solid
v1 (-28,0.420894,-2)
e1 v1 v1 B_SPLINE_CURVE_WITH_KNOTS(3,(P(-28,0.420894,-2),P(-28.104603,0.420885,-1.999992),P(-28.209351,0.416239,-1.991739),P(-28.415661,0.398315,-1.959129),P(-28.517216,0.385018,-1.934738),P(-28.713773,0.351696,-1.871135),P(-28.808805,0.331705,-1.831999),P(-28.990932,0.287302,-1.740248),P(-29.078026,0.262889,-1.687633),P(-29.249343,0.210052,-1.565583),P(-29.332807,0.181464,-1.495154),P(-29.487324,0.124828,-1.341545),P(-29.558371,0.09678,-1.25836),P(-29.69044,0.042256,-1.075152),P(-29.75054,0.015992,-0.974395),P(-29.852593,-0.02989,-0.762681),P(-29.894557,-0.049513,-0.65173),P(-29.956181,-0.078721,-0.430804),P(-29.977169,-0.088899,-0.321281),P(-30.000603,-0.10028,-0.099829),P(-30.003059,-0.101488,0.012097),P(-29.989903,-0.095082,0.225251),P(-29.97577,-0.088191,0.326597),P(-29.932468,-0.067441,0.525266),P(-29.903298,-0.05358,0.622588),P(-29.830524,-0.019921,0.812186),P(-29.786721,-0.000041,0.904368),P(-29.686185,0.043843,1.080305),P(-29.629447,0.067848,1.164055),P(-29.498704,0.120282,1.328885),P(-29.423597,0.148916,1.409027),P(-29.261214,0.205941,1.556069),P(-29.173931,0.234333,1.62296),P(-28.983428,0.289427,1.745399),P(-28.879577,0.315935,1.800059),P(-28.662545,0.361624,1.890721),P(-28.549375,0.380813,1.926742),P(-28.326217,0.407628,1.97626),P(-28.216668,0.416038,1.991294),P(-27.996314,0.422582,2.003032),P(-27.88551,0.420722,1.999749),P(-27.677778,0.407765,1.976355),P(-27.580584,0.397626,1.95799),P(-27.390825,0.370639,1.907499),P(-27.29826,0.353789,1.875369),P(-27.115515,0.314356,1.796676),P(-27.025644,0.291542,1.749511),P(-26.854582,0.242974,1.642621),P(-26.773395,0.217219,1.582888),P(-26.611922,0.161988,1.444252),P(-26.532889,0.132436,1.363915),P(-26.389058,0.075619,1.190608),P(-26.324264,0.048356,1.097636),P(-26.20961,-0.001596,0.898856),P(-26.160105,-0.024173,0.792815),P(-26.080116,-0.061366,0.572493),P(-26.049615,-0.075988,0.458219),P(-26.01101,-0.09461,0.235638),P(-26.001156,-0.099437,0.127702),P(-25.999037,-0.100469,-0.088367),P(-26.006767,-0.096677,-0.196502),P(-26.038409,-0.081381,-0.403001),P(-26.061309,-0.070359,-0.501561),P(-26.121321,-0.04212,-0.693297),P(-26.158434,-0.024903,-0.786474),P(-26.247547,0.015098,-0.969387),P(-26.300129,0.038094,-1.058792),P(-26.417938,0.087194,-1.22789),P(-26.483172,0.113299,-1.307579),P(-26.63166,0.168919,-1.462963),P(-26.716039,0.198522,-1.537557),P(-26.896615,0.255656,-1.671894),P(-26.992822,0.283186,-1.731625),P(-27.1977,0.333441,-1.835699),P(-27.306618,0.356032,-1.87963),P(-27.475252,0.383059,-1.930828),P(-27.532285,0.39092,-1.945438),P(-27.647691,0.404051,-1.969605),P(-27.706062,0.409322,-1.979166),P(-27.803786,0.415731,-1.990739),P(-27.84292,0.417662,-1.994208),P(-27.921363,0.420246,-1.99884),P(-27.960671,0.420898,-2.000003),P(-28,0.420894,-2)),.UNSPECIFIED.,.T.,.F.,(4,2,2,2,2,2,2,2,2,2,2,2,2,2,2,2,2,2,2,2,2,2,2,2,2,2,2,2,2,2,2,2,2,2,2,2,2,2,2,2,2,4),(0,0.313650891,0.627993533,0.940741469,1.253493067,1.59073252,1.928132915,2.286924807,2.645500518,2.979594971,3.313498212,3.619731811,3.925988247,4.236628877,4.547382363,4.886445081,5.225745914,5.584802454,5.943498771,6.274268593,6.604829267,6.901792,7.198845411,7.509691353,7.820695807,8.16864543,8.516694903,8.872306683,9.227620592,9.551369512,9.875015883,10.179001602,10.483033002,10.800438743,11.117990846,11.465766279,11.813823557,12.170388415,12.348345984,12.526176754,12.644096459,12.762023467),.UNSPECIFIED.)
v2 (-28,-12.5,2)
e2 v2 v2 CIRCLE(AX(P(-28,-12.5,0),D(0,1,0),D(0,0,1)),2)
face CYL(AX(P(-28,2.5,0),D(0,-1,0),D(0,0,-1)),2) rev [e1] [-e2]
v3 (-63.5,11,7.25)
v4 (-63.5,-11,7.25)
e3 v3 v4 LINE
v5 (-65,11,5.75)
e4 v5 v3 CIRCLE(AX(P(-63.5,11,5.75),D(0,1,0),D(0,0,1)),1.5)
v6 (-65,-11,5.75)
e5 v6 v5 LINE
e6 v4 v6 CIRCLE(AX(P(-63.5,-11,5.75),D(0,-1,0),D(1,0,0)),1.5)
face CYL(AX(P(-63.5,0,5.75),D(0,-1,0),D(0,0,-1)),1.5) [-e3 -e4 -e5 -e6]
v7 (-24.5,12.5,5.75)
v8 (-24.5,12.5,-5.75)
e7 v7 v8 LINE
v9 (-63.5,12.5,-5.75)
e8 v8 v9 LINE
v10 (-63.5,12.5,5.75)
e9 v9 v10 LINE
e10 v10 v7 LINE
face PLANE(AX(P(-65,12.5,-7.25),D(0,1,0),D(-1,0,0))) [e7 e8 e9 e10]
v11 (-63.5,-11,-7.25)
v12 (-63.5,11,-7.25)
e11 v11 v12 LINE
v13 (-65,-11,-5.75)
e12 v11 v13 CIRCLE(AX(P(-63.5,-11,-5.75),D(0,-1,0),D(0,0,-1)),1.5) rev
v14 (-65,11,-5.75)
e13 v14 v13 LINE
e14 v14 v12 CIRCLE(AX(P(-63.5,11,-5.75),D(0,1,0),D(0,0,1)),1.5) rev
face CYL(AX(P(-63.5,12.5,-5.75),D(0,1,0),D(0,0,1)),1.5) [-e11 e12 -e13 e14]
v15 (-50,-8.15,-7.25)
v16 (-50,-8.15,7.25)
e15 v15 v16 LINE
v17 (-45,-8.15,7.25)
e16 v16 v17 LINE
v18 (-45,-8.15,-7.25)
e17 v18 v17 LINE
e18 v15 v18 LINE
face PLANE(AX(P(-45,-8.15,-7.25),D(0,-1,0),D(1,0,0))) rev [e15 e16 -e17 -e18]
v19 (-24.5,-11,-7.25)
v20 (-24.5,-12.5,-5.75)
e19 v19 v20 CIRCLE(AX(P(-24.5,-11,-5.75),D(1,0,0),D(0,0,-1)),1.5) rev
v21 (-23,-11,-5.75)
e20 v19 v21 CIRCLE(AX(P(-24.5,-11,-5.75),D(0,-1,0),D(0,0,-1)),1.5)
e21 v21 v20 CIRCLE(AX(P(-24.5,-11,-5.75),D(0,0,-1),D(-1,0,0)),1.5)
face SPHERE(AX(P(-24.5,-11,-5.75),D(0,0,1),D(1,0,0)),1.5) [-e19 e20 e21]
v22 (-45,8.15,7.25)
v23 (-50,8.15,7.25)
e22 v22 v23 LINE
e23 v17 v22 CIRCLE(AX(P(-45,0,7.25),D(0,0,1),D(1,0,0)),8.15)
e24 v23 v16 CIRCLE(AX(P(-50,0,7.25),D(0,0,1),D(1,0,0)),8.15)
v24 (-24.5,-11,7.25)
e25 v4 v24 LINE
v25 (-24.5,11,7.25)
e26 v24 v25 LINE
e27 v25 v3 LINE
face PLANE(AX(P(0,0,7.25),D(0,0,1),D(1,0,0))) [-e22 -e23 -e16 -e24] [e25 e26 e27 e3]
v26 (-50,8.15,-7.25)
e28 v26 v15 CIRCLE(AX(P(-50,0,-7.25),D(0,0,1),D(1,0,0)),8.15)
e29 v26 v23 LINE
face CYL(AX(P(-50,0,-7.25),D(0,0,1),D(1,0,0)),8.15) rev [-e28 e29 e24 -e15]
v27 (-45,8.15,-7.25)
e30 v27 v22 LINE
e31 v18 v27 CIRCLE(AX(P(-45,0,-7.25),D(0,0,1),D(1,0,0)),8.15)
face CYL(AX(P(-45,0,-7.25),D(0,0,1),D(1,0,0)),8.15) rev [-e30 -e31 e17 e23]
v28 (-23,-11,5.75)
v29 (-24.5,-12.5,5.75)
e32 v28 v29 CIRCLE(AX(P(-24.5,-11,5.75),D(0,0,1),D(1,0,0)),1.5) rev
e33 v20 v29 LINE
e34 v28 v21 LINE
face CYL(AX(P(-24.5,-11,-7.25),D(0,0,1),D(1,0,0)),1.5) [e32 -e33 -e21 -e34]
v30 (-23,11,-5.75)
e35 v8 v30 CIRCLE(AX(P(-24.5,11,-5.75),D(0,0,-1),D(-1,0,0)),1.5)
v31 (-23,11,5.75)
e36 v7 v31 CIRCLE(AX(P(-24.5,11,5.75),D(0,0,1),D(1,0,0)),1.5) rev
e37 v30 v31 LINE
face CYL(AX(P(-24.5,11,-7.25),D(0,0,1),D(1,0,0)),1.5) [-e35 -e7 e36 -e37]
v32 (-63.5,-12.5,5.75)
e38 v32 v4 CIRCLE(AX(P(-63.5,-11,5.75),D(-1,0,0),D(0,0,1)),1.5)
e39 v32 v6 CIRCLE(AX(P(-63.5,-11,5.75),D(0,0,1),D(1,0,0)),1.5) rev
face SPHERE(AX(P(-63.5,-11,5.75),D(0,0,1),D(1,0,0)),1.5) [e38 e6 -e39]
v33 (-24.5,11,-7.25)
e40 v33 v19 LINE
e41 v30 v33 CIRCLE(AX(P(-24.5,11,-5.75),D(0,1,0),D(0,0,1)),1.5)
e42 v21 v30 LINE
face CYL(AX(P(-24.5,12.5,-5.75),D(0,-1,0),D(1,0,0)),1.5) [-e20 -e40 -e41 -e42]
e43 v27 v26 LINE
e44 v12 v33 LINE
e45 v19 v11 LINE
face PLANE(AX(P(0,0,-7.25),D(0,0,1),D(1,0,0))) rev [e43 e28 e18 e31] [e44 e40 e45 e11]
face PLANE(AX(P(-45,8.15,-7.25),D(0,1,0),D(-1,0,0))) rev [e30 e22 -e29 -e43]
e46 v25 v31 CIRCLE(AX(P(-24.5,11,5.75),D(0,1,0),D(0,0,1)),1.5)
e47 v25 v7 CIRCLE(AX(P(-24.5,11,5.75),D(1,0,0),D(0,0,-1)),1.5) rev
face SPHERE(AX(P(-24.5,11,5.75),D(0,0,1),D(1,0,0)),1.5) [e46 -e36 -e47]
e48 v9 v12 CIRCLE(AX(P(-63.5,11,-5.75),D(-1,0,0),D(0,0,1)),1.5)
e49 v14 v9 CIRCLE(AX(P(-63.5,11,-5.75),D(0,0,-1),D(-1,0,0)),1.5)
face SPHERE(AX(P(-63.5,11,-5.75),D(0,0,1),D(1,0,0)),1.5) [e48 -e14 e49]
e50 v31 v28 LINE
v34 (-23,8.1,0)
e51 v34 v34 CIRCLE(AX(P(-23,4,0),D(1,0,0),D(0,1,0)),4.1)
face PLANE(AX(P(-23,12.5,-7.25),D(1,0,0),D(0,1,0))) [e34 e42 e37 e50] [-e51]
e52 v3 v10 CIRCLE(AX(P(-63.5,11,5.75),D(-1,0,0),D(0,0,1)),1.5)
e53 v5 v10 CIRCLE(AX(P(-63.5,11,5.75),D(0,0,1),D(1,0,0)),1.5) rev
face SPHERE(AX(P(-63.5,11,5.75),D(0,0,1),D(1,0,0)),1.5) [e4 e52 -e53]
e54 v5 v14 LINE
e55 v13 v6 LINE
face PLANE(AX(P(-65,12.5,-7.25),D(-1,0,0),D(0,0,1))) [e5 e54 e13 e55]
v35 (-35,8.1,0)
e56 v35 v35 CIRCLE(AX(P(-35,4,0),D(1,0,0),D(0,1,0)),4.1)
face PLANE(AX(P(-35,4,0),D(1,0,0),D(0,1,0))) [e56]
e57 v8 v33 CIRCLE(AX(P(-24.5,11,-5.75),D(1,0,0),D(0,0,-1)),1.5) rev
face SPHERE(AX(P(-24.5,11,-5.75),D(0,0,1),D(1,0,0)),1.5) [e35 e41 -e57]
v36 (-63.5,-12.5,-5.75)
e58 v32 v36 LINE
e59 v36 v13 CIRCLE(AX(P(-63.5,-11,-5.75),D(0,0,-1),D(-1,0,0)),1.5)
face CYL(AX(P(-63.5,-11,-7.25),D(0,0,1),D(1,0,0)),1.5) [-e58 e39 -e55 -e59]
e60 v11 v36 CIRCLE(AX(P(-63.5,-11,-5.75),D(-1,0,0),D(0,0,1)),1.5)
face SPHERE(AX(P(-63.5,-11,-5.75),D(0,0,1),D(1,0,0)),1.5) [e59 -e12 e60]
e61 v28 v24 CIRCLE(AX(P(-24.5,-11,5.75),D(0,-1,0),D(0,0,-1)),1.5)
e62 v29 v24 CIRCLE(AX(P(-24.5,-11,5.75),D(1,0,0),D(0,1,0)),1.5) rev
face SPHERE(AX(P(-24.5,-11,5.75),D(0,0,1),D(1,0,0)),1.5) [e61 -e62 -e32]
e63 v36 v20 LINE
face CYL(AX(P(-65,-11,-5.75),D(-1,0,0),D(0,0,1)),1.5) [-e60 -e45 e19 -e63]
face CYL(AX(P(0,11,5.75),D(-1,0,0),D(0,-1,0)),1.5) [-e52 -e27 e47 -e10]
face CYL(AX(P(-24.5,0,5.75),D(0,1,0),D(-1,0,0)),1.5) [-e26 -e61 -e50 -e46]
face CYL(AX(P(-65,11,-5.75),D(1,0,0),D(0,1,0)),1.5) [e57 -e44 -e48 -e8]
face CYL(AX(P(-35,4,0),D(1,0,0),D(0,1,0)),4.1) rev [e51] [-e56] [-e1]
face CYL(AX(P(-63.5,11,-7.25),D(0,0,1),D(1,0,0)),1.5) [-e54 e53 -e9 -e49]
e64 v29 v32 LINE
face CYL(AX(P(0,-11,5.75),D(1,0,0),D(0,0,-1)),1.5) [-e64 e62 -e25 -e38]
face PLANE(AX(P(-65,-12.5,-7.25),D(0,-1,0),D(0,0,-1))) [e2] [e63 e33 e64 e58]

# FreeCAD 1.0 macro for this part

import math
import FreeCAD as App
import Part
import Sketcher
Q = App.Units.Quantity


def edges_at(feature, points):
    """Names of the edges that pass closest to the given points."""
    edges = feature.Shape.Edges
    near = lambda p: min(range(len(edges)), key=lambda i: edges[i].distToShape(Part.Vertex(*p))[0])
    return sorted({f"Edge{near(p) + 1}" for p in points})

doc = App.newDocument("Part")
params = doc.addObject("Spreadsheet::Sheet", "Params")
for row, (alias, value) in enumerate([
    ("sketch1_width", "42 mm"),
    ("sketch1_width2", "5 mm"),
    ("sketch1_height", "25 mm"),
    ("sketch1_radius", "8.15 mm"),
    ("pad1_length", "7.25 mm"),
    ("pad1_length2", "7.25 mm"),
    ("sketch2_diameter", "8.2 mm"),
    ("pocket1_length", "12 mm"),
    ("sketch3_diameter", "4 mm"),
    ("pocket2_length", "15 mm"),
    ("fillet_radius", "1.5 mm"),
], start=1):
    params.set(f"A{row}", alias)
    params.set(f"B{row}", "=" + value)
    params.setAlias(f"B{row}", alias)

body = doc.addObject("PartDesign::Body", "Body")

# Sketch on XY plane
sketch1 = body.newObject("Sketcher::SketchObject", "Sketch")
sketch1.AttachmentSupport = (doc.getObject("XY_Plane"), [""])
sketch1.MapMode = "FlatFace"
sketch1.addGeometry([
    Part.LineSegment(App.Vector(-65, 12, 0), App.Vector(-65, -12, 0)),  # 0
    Part.LineSegment(App.Vector(-65, -12, 0), App.Vector(-23, -12, 0)),  # 1
    Part.LineSegment(App.Vector(-23, -12, 0), App.Vector(-23, 12, 0)),  # 2
    Part.LineSegment(App.Vector(-23, 12, 0), App.Vector(-65, 12, 0)),  # 3
    Part.ArcOfCircle(Part.Circle(App.Vector(-45, 0, 0), App.Vector(0, 0, 1), 8), math.radians(-90), math.radians(90)),  # 4
    Part.LineSegment(App.Vector(-45, -8, 0), App.Vector(-50, -8, 0)),  # 5
    Part.ArcOfCircle(Part.Circle(App.Vector(-50, 0, 0), App.Vector(0, 0, 1), 8), math.radians(90), math.radians(270)),  # 6
    Part.LineSegment(App.Vector(-50, 8, 0), App.Vector(-45, 8, 0)),  # 7
], False)
sketch1.addConstraint([
    Sketcher.Constraint("Coincident", 0, 2, 1, 1),
    Sketcher.Constraint("Coincident", 1, 2, 2, 1),
    Sketcher.Constraint("Coincident", 2, 2, 3, 1),
    Sketcher.Constraint("Coincident", 3, 2, 0, 1),
    Sketcher.Constraint("Tangent", 4, 1, 5, 1),
    Sketcher.Constraint("Tangent", 5, 2, 6, 2),
    Sketcher.Constraint("Tangent", 6, 1, 7, 1),
    Sketcher.Constraint("Tangent", 7, 2, 4, 2),
    Sketcher.Constraint("Vertical", 0),
    Sketcher.Constraint("Horizontal", 1),
    Sketcher.Constraint("Vertical", 2),
    Sketcher.Constraint("Horizontal", 3),
    Sketcher.Constraint("Horizontal", 5),
    Sketcher.Constraint("Horizontal", 7),
    Sketcher.Constraint("PointOnObject", 4, 3, -1),
    Sketcher.Constraint("DistanceX", 1, 1, 1, 2, Q("42 mm")),
    Sketcher.Constraint("DistanceX", 5, 2, 5, 1, Q("5 mm")),
    Sketcher.Constraint("DistanceY", 0, 2, 0, 1, Q("25 mm")),
    Sketcher.Constraint("Radius", 4, Q("8.15 mm")),
    Sketcher.Constraint("DistanceX", 4, 3, -1, 1, Q("45 mm")),
    Sketcher.Constraint("DistanceX", 0, 2, -1, 1, Q("65 mm")),
    Sketcher.Constraint("DistanceY", 0, 2, -1, 1, Q("12.5 mm")),
])
sketch1.setExpression("Constraints[15]", "Params.sketch1_width")
sketch1.setExpression("Constraints[16]", "Params.sketch1_width2")
sketch1.setExpression("Constraints[17]", "Params.sketch1_height")
sketch1.setExpression("Constraints[18]", "Params.sketch1_radius")
pad1 = body.newObject("PartDesign::Pad", "Pad")
pad1.Profile = sketch1
pad1.Type = "TwoLengths"
pad1.setExpression("Length", "Params.pad1_length")
pad1.setExpression("Length2", "Params.pad1_length2")

# Sketch on YZ plane
sketch2 = body.newObject("Sketcher::SketchObject", "Sketch001")
sketch2.AttachmentSupport = (doc.getObject("YZ_Plane"), [""])
sketch2.MapMode = "FlatFace"
sketch2.AttachmentOffset = App.Placement(App.Vector(0, 0, -23), App.Rotation())
sketch2.addGeometry(Part.Circle(App.Vector(4, 0, 0), App.Vector(0, 0, 1), 4.1), False)
sketch2.addConstraint([
    Sketcher.Constraint("PointOnObject", 0, 3, -1),
    Sketcher.Constraint("Diameter", 0, Q("8.2 mm")),
    Sketcher.Constraint("DistanceX", -1, 1, 0, 3, Q("4 mm")),
])
sketch2.setExpression("Constraints[1]", "Params.sketch2_diameter")
pocket1 = body.newObject("PartDesign::Pocket", "Pocket")
pocket1.Profile = sketch2
pocket1.setExpression("Length", "Params.pocket1_length")

# Sketch on XZ plane
sketch3 = body.newObject("Sketcher::SketchObject", "Sketch002")
sketch3.AttachmentSupport = (doc.getObject("XZ_Plane"), [""])
sketch3.MapMode = "FlatFace"
sketch3.AttachmentOffset = App.Placement(App.Vector(0, 0, 12.5), App.Rotation())
sketch3.addGeometry(Part.Circle(App.Vector(-28, 0, 0), App.Vector(0, 0, 1), 2), False)
sketch3.addConstraint([
    Sketcher.Constraint("PointOnObject", 0, 3, -1),
    Sketcher.Constraint("Diameter", 0, Q("4 mm")),
    Sketcher.Constraint("DistanceX", 0, 3, -1, 1, Q("28 mm")),
])
sketch3.setExpression("Constraints[1]", "Params.sketch3_diameter")
pocket2 = body.newObject("PartDesign::Pocket", "Pocket001")
pocket2.Profile = sketch3
pocket2.setExpression("Length", "Params.pocket2_length")
doc.recompute()

fillet = body.newObject("PartDesign::Fillet", "Fillet")
fillet.Base = (pocket2, edges_at(pocket2, [
    (-23, 0, -7.25),
    (-44, 12.5, -7.25),
    (-65, 0, 7.25),
    (-44, -12.5, 7.25),
    (-23, 0, 7.25),
    (-44, 12.5, 7.25),
    (-65, 0, -7.25),
    (-65, 12.5, 0),
    (-23, 12.5, 0),
    (-23, -12.5, 0),
    (-65, -12.5, 0),
    (-44, -12.5, -7.25),
]))
fillet.setExpression("Radius", "Params.fillet_radius")

doc.recompute()
